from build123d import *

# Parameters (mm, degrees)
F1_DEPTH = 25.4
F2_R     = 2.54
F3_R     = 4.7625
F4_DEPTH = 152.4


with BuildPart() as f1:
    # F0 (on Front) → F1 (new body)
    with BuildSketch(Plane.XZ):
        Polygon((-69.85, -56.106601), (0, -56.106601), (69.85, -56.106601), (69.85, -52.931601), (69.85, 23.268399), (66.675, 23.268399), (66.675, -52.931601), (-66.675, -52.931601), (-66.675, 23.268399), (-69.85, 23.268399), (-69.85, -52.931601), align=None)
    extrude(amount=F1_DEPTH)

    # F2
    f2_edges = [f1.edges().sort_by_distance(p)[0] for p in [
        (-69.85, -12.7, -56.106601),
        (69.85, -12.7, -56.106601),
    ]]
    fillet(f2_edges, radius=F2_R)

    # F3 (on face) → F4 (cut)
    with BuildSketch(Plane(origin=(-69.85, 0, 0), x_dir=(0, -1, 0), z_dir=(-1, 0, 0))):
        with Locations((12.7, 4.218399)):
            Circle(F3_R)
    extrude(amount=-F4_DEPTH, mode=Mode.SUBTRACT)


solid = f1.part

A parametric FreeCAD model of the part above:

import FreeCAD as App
import Part
import Sketcher

V = App.Vector
Q = App.Units.Quantity


def edges_at(feature, points):
    """Names of the edges that pass closest to the given points."""
    edges = feature.Shape.Edges
    near = lambda p: min(range(len(edges)), key=lambda i: edges[i].distToShape(Part.Vertex(*p))[0])
    return sorted({f"Edge{near(p) + 1}" for p in points})


def add_polygon(sketch, points):
    """Adds a closed chain of lines whose ends are joined by coincident constraints."""
    first, n = sketch.GeometryCount, len(points)
    for a, b in zip(points, points[1:] + points[:1]):
        sketch.addGeometry(Part.LineSegment(App.Vector(*a, 0), App.Vector(*b, 0)), False)
    for i in range(n):
        sketch.addConstraint(Sketcher.Constraint("Coincident", first + i, 2, first + (i + 1) % n, 1))

doc = App.newDocument("Part")
params = doc.addObject("Spreadsheet::Sheet", "Params")
for row, (alias, value) in enumerate([
    ("sketch1_height", "3 in"),
    ("sketch1_width", "5.5 in"),
    ("sketch1_width2", "5.25 in"),
    ("sketch1_height2", "3.125 in"),
    ("pad1_length", "1 in"),
    ("fillet_radius", "0.1 in"),
    ("sketch2_diameter", "0.375 in"),
    ("pocket1_length", "6 in"),
], start=1):
    params.set(f"A{row}", alias)
    params.set(f"B{row}", "=" + value)
    params.setAlias(f"B{row}", alias)

body = doc.addObject("PartDesign::Body", "Body")

sketch1 = body.newObject("Sketcher::SketchObject", "Sketch")
sketch1.AttachmentSupport = (doc.getObject("XZ_Plane"), [""])
sketch1.MapMode = "FlatFace"
add_polygon(sketch1, [(-69.85, -56.106601), (69.85, -56.106601), (69.85, 23.268399), (66.675, 23.268399), (66.675, -52.931601), (-66.675, -52.931601), (-66.675, 23.268399), (-69.85, 23.268399)])
sketch1.addConstraint([
    Sketcher.Constraint("Horizontal", 0),
    Sketcher.Constraint("Vertical", 1),
    Sketcher.Constraint("Horizontal", 2),
    Sketcher.Constraint("Vertical", 3),
    Sketcher.Constraint("Horizontal", 4),
    Sketcher.Constraint("Vertical", 5),
    Sketcher.Constraint("Horizontal", 6),
    Sketcher.Constraint("Vertical", 7),
    Sketcher.Constraint("Symmetric", 2, 2, 5, 2, -2),
    Sketcher.Constraint("Equal", 2, 6),
    Sketcher.Constraint("DistanceY", 3, 2, 3, 1, Q("3 in")),
    Sketcher.Constraint("DistanceX", 0, 1, 0, 2, Q("5.5 in")),
    Sketcher.Constraint("DistanceX", 4, 2, 4, 1, Q("5.25 in")),
    Sketcher.Constraint("DistanceY", 1, 1, 1, 2, Q("3.125 in")),
    Sketcher.Constraint("DistanceY", 0, 2, -1, 1, 56.106601),
])
sketch1.setExpression("Constraints[18]", "Params.sketch1_height")
sketch1.setExpression("Constraints[19]", "Params.sketch1_width")
sketch1.setExpression("Constraints[20]", "Params.sketch1_width2")
sketch1.setExpression("Constraints[21]", "Params.sketch1_height2")
pad1 = body.newObject("PartDesign::Pad", "Pad")
pad1.Profile = sketch1
pad1.setExpression("Length", "Params.pad1_length")
doc.recompute()

fillet = body.newObject("PartDesign::Fillet", "Fillet")
fillet.Base = (pad1, edges_at(pad1, [(-69.85, -12.7, -56.107), (69.85, -12.7, -56.107)]))
fillet.setExpression("Radius", "Params.fillet_radius")

sketch2 = body.newObject("Sketcher::SketchObject", "Sketch001")
sketch2.AttachmentSupport = (doc.getObject("YZ_Plane"), [""])
sketch2.MapMode = "FlatFace"
sketch2.AttachmentOffset = App.Placement(V(0, 0, -2.75 * 25.4), App.Rotation())
sketch2.addGeometry(Part.Circle(V(-12.7, 4.218399, 0), V(0, 0, 1), 4.7625), False)
sketch2.addConstraint([
    Sketcher.Constraint("Diameter", 0, Q("0.375 in")),
    Sketcher.Constraint("DistanceX", 0, 3, -1, 1, Q("0.5 in")),
    Sketcher.Constraint("DistanceY", -1, 1, 0, 3, 4.218399),
])
sketch2.setExpression("Constraints[0]", "Params.sketch2_diameter")
pocket1 = body.newObject("PartDesign::Pocket", "Pocket")
pocket1.Profile = sketch2
pocket1.setExpression("Length", "Params.pocket1_length")
pocket1.Reversed = True

doc.recompute()
